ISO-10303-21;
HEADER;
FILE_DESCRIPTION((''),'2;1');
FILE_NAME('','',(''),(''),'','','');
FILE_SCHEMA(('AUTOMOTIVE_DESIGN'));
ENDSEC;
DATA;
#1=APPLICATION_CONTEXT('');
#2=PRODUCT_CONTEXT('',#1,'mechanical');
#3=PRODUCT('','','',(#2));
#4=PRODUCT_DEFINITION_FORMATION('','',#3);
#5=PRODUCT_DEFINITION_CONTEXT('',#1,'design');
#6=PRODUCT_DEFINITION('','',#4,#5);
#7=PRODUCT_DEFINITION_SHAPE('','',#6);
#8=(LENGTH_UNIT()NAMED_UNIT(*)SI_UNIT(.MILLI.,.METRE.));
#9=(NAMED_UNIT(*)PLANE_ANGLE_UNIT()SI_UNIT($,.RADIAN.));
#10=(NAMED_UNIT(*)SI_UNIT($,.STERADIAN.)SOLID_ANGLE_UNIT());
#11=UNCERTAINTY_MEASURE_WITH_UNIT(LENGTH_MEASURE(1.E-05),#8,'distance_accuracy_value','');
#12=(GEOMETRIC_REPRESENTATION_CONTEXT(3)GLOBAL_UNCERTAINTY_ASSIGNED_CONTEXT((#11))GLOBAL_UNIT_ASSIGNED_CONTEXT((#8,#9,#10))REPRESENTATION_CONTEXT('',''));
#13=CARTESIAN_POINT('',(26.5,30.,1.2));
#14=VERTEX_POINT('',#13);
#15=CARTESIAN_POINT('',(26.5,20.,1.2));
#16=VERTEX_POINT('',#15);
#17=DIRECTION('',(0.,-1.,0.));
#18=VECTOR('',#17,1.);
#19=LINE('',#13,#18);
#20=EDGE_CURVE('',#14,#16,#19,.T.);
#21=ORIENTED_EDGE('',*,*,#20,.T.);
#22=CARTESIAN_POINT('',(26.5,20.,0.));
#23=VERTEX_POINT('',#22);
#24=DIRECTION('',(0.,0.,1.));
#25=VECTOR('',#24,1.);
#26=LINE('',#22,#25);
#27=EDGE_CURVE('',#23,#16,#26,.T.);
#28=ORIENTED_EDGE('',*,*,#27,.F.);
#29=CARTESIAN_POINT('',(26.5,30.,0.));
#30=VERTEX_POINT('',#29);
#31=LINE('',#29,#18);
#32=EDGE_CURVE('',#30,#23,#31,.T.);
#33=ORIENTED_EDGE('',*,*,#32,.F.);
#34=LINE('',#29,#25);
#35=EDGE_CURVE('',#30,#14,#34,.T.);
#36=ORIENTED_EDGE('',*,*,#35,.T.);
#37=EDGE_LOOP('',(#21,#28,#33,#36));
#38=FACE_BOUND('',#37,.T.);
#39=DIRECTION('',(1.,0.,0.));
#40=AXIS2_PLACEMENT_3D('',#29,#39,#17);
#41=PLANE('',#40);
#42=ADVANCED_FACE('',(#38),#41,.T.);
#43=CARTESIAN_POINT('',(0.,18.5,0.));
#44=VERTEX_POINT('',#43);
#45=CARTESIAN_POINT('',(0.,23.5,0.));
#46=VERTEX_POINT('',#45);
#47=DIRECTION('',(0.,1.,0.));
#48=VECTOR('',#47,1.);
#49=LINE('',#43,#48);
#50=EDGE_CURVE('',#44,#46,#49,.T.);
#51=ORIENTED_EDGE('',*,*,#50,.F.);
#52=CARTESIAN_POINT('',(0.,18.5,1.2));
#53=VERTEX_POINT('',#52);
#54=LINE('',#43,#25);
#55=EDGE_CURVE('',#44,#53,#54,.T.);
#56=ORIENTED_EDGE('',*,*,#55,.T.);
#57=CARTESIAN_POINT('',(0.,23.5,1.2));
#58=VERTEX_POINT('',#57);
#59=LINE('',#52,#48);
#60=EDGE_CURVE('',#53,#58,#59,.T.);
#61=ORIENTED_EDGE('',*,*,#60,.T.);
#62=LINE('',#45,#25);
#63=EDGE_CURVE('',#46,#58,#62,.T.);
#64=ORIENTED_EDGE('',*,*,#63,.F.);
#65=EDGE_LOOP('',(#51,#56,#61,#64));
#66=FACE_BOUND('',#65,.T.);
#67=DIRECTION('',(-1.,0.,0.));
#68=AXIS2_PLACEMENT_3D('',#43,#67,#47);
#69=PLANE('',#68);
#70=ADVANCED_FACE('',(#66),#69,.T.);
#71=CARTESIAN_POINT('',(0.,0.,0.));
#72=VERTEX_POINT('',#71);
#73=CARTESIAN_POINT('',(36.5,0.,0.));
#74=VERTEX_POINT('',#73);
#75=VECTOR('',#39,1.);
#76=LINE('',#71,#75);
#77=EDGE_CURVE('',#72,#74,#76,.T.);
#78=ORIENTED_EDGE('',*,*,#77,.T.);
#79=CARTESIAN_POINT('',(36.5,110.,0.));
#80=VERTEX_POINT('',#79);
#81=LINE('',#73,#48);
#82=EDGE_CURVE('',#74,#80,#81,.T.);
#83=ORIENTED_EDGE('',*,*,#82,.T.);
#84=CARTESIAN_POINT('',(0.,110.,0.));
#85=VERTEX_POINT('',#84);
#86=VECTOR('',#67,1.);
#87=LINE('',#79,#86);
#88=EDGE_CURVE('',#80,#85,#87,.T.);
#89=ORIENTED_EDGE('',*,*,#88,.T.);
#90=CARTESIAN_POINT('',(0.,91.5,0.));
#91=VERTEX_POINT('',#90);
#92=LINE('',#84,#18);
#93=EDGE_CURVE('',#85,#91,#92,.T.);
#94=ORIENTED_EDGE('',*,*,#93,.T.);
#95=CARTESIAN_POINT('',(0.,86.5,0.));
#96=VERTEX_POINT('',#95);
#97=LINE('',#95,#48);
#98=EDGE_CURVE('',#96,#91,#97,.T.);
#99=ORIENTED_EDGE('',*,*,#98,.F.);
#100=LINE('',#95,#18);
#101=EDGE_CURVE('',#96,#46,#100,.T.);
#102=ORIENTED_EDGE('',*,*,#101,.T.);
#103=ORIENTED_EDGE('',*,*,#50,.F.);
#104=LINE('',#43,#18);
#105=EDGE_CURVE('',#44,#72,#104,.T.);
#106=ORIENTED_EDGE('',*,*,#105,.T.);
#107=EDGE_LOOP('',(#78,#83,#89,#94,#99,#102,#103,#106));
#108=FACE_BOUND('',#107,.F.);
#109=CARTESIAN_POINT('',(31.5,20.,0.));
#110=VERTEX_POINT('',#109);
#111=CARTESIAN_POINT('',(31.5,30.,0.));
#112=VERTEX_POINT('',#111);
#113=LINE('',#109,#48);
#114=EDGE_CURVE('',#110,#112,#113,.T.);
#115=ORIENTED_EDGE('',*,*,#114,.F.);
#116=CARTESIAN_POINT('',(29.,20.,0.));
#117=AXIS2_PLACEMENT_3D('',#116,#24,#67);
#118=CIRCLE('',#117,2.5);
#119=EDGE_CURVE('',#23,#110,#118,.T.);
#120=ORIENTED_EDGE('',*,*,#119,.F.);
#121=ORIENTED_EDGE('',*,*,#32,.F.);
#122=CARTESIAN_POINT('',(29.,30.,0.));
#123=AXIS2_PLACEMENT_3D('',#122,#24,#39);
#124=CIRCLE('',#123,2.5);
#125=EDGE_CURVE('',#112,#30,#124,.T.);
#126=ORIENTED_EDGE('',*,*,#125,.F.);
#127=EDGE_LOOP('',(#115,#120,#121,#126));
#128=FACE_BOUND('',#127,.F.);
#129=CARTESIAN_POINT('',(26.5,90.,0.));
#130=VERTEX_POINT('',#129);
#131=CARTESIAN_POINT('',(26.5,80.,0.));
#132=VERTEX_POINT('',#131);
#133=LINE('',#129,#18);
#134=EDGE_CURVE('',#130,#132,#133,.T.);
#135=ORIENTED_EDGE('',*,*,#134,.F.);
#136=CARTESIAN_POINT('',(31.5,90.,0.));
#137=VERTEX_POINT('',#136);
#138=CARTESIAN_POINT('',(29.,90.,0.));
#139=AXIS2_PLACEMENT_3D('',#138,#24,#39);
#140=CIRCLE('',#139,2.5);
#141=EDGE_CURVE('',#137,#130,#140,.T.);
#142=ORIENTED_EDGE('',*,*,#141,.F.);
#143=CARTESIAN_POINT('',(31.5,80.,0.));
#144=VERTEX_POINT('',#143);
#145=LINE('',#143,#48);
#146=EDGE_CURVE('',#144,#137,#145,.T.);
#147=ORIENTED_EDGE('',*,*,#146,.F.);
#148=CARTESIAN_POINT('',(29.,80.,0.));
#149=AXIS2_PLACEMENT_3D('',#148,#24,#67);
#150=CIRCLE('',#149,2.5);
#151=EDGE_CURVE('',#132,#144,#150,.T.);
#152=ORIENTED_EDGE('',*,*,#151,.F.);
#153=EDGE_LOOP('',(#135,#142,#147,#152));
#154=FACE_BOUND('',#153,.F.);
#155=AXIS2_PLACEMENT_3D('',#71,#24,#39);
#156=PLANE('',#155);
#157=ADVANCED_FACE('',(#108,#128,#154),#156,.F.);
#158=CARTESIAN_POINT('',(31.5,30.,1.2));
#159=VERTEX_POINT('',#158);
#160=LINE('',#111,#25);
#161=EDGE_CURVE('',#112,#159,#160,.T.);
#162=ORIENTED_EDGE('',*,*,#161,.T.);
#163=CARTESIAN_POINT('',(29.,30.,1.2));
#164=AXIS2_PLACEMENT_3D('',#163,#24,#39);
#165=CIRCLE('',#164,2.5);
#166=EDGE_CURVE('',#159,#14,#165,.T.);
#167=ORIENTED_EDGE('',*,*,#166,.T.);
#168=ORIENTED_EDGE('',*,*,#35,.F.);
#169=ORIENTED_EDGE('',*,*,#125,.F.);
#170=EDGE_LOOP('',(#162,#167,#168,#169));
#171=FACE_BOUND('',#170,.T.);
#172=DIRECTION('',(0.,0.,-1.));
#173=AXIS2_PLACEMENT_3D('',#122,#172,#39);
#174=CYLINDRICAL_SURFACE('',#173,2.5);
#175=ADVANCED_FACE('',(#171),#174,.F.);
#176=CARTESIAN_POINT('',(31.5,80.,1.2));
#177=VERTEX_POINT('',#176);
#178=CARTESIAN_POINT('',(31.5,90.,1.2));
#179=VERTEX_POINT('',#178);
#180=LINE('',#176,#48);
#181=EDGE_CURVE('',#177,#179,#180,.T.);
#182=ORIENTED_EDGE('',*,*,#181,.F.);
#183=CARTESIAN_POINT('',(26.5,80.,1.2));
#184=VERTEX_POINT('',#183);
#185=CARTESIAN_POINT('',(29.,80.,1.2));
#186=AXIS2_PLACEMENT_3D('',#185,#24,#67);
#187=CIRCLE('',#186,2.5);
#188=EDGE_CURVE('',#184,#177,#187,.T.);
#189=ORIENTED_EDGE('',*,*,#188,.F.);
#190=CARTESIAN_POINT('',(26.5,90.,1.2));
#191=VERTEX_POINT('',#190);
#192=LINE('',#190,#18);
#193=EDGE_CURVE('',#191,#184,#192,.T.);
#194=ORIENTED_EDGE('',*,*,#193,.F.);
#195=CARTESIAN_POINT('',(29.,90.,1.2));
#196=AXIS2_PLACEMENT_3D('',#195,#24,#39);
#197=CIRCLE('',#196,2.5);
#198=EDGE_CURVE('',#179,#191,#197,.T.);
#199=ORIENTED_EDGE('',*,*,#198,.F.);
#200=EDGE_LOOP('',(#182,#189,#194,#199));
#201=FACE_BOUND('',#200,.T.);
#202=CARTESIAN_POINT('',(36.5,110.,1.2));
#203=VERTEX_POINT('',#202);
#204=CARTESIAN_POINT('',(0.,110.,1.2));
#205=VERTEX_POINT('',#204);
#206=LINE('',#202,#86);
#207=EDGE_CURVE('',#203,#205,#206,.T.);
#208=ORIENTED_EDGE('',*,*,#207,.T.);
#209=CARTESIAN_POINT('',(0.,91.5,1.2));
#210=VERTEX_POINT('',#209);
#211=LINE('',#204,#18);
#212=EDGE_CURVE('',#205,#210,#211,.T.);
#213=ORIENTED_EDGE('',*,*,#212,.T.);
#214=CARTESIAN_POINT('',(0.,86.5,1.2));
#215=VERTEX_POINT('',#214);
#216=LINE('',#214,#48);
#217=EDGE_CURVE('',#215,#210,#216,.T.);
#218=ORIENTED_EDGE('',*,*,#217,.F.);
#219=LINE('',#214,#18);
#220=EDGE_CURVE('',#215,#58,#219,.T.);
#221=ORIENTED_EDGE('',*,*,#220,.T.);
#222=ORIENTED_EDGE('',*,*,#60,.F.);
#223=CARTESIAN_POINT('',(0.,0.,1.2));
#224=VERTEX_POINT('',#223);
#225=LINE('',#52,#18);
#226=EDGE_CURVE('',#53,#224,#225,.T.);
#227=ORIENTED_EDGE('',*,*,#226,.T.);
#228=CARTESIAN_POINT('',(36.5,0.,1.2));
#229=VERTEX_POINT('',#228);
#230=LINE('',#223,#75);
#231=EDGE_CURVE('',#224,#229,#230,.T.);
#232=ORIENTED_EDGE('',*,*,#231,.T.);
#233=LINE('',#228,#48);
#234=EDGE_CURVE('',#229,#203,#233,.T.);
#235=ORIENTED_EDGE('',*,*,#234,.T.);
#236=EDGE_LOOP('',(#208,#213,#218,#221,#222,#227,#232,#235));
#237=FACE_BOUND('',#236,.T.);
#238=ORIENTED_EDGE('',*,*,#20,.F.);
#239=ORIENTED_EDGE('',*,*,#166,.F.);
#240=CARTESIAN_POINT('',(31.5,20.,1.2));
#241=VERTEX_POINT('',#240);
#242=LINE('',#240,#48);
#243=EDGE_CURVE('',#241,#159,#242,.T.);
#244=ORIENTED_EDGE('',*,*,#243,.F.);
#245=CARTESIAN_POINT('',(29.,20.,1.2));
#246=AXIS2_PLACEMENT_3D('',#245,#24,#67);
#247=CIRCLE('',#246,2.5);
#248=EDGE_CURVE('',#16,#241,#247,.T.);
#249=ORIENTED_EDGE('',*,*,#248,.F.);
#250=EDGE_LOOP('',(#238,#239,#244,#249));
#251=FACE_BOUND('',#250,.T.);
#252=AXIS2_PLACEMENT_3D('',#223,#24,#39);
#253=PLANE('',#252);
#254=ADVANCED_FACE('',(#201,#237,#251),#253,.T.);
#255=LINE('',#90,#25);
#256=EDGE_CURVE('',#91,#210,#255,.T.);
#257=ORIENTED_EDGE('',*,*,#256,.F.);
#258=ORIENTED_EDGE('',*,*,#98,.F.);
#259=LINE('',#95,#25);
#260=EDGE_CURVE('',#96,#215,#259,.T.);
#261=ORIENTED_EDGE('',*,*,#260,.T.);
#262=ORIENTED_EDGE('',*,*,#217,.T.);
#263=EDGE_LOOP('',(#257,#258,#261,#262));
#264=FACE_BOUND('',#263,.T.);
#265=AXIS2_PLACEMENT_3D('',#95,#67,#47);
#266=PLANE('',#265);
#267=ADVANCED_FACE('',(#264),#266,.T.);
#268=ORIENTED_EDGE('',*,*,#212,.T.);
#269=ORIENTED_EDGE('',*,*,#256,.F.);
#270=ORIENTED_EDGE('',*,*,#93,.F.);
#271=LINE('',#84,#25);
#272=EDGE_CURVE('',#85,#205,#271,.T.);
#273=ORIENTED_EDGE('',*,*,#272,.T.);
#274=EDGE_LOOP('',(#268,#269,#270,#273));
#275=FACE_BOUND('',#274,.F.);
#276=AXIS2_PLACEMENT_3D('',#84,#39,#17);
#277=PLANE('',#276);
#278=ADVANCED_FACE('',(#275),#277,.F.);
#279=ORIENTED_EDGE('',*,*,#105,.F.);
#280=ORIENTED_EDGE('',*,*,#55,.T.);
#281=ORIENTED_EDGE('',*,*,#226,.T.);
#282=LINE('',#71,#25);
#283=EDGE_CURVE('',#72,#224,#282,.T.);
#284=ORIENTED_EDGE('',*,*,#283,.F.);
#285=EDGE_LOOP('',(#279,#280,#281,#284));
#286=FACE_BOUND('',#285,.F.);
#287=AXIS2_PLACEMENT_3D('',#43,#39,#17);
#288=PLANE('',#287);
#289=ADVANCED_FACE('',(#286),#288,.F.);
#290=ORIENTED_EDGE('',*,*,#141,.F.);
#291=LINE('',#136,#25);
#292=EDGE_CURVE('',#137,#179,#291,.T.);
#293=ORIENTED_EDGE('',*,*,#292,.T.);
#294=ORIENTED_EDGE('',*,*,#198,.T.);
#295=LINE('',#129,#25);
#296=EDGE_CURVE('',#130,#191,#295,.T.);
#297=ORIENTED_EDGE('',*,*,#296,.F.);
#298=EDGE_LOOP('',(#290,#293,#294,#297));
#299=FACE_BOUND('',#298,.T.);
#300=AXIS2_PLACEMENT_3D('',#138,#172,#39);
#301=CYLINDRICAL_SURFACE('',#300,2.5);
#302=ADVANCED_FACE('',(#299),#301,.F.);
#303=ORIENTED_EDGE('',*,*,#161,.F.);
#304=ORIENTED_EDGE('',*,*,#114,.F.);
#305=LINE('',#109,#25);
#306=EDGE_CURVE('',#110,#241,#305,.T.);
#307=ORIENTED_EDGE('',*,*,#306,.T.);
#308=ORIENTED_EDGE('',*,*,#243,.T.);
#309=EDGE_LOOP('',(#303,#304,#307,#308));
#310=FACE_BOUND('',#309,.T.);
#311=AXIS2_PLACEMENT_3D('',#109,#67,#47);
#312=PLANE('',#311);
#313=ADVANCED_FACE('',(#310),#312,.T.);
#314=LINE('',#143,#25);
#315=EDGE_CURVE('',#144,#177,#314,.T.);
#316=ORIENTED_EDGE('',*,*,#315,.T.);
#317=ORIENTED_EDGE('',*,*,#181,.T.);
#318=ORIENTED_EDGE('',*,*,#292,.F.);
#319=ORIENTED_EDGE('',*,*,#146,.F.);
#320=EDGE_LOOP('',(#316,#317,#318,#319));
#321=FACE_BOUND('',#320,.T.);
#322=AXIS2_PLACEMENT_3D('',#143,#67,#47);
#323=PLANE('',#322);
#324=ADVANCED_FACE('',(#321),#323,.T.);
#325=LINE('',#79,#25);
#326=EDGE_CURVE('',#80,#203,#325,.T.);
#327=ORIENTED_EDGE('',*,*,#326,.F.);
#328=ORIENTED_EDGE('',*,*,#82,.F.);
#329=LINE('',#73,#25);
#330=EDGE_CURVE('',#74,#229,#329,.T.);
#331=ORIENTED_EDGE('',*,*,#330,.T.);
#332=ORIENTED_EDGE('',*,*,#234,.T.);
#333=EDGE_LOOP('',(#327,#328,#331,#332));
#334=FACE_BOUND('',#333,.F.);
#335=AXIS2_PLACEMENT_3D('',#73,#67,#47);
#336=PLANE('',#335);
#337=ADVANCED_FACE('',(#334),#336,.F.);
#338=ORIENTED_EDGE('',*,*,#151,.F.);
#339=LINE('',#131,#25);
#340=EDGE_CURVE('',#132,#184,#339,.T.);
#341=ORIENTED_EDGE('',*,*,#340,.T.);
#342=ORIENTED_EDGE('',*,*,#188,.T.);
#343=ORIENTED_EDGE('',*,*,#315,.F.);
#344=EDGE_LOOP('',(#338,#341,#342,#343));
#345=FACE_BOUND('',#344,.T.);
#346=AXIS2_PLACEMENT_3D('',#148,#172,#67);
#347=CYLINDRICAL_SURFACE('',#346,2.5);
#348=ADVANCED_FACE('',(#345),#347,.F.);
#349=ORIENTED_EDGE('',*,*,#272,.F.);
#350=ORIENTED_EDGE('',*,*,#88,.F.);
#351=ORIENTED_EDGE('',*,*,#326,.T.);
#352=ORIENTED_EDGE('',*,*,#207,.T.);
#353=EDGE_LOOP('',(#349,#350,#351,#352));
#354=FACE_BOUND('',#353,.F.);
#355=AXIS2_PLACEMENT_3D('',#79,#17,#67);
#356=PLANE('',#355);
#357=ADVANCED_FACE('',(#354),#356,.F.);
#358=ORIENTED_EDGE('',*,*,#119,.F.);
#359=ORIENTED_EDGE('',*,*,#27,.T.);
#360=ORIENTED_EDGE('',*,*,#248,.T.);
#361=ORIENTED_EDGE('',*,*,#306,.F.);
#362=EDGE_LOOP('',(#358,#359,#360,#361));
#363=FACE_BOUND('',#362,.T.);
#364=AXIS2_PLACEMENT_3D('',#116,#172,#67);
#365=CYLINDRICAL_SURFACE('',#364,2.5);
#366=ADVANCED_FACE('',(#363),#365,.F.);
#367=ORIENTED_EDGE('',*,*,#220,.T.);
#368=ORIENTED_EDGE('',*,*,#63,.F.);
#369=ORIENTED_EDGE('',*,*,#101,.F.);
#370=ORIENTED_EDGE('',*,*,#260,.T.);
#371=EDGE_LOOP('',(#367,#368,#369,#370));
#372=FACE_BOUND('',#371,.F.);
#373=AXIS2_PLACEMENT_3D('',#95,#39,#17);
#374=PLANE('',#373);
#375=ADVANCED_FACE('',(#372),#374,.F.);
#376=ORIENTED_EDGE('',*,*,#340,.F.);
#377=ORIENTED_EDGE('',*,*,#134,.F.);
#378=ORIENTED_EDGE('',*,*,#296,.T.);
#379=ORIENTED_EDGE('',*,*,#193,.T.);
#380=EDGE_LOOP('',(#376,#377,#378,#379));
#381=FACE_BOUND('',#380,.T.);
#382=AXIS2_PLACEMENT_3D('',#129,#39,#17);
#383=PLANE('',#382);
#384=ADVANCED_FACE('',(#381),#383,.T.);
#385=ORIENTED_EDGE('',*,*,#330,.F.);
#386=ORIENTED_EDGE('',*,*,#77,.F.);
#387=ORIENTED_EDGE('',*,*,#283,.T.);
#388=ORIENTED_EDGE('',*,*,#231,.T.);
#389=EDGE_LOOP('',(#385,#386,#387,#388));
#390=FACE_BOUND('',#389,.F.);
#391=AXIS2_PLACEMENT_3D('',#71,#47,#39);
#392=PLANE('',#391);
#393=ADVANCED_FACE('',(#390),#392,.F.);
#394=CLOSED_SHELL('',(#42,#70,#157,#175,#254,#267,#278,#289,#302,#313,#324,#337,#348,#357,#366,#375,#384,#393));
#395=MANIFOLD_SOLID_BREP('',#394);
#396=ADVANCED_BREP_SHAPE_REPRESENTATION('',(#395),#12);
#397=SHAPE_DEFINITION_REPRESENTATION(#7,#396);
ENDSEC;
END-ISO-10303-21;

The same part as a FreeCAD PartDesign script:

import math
import FreeCAD as App
import Part
import Sketcher
from FreeCAD import Vector


def add_polygon(sketch, points):
    """Adds a closed chain of lines whose ends are joined by coincident constraints."""
    first, n = sketch.GeometryCount, len(points)
    for a, b in zip(points, points[1:] + points[:1]):
        sketch.addGeometry(Part.LineSegment(App.Vector(*a, 0), App.Vector(*b, 0)), False)
    for i in range(n):
        sketch.addConstraint(Sketcher.Constraint("Coincident", first + i, 2, first + (i + 1) % n, 1))

doc = App.newDocument("Part")
params = doc.addObject("Spreadsheet::Sheet", "Params")
for row, (alias, value) in enumerate([
    ("sketch1_radius", "2.5 mm"),
    ("sketch1_height", "110 mm"),
    ("sketch1_height2", "10 mm"),
    ("sketch1_width", "36.5 mm"),
    ("pad1_length", "1.2 mm"),
], start=1):
    params.set(f"A{row}", alias)
    params.set(f"B{row}", "=" + value)
    params.setAlias(f"B{row}", alias)

body = doc.addObject("PartDesign::Body", "Body")

# Sketch on XY plane
sketch1 = body.newObject("Sketcher::SketchObject", "Sketch")
sketch1.AttachmentSupport = (doc.getObject("XY_Plane"), [""])
sketch1.MapMode = "FlatFace"
add_polygon(sketch1, [(0, 110), (0, 0), (36.5, 0), (36.5, 110)])  # lines 0-3
sketch1.addGeometry(Part.LineSegment(Vector(26.5, 20, 0), Vector(26.5, 30, 0)), False)  # 4
sketch1.addGeometry(Part.ArcOfCircle(Part.Circle(Vector(29, 30, 0), Vector(0, 0, 1), 2.5), math.radians(0), math.radians(180)), False)  # 5
sketch1.addGeometry(Part.LineSegment(Vector(31.5, 30, 0), Vector(31.5, 20, 0)), False)  # 6
sketch1.addGeometry(Part.ArcOfCircle(Part.Circle(Vector(29, 20, 0), Vector(0, 0, 1), 2.5), math.radians(180), math.radians(360)), False)  # 7
sketch1.addGeometry(Part.LineSegment(Vector(26.5, 80, 0), Vector(26.5, 90, 0)), False)  # 8
sketch1.addGeometry(Part.ArcOfCircle(Part.Circle(Vector(29, 90, 0), Vector(0, 0, 1), 2.5), math.radians(0), math.radians(180)), False)  # 9
sketch1.addGeometry(Part.LineSegment(Vector(31.5, 90, 0), Vector(31.5, 80, 0)), False)  # 10
sketch1.addGeometry(Part.ArcOfCircle(Part.Circle(Vector(29, 80, 0), Vector(0, 0, 1), 2.5), math.radians(180), math.radians(360)), False)  # 11
sketch1.addConstraint([
    Sketcher.Constraint("Tangent", 4, 2, 5, 2),
    Sketcher.Constraint("Tangent", 5, 1, 6, 1),
    Sketcher.Constraint("Tangent", 6, 2, 7, 2),
    Sketcher.Constraint("Tangent", 7, 1, 4, 1),
    Sketcher.Constraint("Tangent", 8, 2, 9, 2),
    Sketcher.Constraint("Tangent", 9, 1, 10, 1),
    Sketcher.Constraint("Tangent", 10, 2, 11, 2),
    Sketcher.Constraint("Tangent", 11, 1, 8, 1),
    Sketcher.Constraint("Vertical", 0),
    Sketcher.Constraint("Horizontal", 1),
    Sketcher.Constraint("Vertical", 2),
    Sketcher.Constraint("Horizontal", 3),
    Sketcher.Constraint("Vertical", 4),
    Sketcher.Constraint("Vertical", 6),
    Sketcher.Constraint("Vertical", 8),
    Sketcher.Constraint("Vertical", 10),
    Sketcher.Constraint("Coincident", 0, 2, -1, 1),
    Sketcher.Constraint("Equal", 7, 9),
    Sketcher.Constraint("Vertical", 7, 3, 9, 3),
    Sketcher.Constraint("Equal", 6, 8),
    Sketcher.Constraint("Radius", 5, 2.5),
    Sketcher.Constraint("DistanceY", 0, 2, 0, 1, 110.0),
    Sketcher.Constraint("DistanceY", 4, 1, 4, 2, 10.0),
    Sketcher.Constraint("DistanceX", 1, 1, 1, 2, 36.5),
    Sketcher.Constraint("DistanceY", -1, 1, 7, 3, 20.0),
    Sketcher.Constraint("DistanceY", 9, 3, 2, 2, 20.0),
    Sketcher.Constraint("DistanceX", 4, 2, 1, 2, 10.0),
])
sketch1.setExpression("Constraints[24]", "Params.sketch1_radius")
sketch1.setExpression("Constraints[25]", "Params.sketch1_height")
sketch1.setExpression("Constraints[26]", "Params.sketch1_height2")
sketch1.setExpression("Constraints[27]", "Params.sketch1_width")
pad1 = body.newObject("PartDesign::Pad", "Pad")
pad1.Profile = sketch1
pad1.setExpression("Length", "Params.pad1_length")

doc.recompute()
